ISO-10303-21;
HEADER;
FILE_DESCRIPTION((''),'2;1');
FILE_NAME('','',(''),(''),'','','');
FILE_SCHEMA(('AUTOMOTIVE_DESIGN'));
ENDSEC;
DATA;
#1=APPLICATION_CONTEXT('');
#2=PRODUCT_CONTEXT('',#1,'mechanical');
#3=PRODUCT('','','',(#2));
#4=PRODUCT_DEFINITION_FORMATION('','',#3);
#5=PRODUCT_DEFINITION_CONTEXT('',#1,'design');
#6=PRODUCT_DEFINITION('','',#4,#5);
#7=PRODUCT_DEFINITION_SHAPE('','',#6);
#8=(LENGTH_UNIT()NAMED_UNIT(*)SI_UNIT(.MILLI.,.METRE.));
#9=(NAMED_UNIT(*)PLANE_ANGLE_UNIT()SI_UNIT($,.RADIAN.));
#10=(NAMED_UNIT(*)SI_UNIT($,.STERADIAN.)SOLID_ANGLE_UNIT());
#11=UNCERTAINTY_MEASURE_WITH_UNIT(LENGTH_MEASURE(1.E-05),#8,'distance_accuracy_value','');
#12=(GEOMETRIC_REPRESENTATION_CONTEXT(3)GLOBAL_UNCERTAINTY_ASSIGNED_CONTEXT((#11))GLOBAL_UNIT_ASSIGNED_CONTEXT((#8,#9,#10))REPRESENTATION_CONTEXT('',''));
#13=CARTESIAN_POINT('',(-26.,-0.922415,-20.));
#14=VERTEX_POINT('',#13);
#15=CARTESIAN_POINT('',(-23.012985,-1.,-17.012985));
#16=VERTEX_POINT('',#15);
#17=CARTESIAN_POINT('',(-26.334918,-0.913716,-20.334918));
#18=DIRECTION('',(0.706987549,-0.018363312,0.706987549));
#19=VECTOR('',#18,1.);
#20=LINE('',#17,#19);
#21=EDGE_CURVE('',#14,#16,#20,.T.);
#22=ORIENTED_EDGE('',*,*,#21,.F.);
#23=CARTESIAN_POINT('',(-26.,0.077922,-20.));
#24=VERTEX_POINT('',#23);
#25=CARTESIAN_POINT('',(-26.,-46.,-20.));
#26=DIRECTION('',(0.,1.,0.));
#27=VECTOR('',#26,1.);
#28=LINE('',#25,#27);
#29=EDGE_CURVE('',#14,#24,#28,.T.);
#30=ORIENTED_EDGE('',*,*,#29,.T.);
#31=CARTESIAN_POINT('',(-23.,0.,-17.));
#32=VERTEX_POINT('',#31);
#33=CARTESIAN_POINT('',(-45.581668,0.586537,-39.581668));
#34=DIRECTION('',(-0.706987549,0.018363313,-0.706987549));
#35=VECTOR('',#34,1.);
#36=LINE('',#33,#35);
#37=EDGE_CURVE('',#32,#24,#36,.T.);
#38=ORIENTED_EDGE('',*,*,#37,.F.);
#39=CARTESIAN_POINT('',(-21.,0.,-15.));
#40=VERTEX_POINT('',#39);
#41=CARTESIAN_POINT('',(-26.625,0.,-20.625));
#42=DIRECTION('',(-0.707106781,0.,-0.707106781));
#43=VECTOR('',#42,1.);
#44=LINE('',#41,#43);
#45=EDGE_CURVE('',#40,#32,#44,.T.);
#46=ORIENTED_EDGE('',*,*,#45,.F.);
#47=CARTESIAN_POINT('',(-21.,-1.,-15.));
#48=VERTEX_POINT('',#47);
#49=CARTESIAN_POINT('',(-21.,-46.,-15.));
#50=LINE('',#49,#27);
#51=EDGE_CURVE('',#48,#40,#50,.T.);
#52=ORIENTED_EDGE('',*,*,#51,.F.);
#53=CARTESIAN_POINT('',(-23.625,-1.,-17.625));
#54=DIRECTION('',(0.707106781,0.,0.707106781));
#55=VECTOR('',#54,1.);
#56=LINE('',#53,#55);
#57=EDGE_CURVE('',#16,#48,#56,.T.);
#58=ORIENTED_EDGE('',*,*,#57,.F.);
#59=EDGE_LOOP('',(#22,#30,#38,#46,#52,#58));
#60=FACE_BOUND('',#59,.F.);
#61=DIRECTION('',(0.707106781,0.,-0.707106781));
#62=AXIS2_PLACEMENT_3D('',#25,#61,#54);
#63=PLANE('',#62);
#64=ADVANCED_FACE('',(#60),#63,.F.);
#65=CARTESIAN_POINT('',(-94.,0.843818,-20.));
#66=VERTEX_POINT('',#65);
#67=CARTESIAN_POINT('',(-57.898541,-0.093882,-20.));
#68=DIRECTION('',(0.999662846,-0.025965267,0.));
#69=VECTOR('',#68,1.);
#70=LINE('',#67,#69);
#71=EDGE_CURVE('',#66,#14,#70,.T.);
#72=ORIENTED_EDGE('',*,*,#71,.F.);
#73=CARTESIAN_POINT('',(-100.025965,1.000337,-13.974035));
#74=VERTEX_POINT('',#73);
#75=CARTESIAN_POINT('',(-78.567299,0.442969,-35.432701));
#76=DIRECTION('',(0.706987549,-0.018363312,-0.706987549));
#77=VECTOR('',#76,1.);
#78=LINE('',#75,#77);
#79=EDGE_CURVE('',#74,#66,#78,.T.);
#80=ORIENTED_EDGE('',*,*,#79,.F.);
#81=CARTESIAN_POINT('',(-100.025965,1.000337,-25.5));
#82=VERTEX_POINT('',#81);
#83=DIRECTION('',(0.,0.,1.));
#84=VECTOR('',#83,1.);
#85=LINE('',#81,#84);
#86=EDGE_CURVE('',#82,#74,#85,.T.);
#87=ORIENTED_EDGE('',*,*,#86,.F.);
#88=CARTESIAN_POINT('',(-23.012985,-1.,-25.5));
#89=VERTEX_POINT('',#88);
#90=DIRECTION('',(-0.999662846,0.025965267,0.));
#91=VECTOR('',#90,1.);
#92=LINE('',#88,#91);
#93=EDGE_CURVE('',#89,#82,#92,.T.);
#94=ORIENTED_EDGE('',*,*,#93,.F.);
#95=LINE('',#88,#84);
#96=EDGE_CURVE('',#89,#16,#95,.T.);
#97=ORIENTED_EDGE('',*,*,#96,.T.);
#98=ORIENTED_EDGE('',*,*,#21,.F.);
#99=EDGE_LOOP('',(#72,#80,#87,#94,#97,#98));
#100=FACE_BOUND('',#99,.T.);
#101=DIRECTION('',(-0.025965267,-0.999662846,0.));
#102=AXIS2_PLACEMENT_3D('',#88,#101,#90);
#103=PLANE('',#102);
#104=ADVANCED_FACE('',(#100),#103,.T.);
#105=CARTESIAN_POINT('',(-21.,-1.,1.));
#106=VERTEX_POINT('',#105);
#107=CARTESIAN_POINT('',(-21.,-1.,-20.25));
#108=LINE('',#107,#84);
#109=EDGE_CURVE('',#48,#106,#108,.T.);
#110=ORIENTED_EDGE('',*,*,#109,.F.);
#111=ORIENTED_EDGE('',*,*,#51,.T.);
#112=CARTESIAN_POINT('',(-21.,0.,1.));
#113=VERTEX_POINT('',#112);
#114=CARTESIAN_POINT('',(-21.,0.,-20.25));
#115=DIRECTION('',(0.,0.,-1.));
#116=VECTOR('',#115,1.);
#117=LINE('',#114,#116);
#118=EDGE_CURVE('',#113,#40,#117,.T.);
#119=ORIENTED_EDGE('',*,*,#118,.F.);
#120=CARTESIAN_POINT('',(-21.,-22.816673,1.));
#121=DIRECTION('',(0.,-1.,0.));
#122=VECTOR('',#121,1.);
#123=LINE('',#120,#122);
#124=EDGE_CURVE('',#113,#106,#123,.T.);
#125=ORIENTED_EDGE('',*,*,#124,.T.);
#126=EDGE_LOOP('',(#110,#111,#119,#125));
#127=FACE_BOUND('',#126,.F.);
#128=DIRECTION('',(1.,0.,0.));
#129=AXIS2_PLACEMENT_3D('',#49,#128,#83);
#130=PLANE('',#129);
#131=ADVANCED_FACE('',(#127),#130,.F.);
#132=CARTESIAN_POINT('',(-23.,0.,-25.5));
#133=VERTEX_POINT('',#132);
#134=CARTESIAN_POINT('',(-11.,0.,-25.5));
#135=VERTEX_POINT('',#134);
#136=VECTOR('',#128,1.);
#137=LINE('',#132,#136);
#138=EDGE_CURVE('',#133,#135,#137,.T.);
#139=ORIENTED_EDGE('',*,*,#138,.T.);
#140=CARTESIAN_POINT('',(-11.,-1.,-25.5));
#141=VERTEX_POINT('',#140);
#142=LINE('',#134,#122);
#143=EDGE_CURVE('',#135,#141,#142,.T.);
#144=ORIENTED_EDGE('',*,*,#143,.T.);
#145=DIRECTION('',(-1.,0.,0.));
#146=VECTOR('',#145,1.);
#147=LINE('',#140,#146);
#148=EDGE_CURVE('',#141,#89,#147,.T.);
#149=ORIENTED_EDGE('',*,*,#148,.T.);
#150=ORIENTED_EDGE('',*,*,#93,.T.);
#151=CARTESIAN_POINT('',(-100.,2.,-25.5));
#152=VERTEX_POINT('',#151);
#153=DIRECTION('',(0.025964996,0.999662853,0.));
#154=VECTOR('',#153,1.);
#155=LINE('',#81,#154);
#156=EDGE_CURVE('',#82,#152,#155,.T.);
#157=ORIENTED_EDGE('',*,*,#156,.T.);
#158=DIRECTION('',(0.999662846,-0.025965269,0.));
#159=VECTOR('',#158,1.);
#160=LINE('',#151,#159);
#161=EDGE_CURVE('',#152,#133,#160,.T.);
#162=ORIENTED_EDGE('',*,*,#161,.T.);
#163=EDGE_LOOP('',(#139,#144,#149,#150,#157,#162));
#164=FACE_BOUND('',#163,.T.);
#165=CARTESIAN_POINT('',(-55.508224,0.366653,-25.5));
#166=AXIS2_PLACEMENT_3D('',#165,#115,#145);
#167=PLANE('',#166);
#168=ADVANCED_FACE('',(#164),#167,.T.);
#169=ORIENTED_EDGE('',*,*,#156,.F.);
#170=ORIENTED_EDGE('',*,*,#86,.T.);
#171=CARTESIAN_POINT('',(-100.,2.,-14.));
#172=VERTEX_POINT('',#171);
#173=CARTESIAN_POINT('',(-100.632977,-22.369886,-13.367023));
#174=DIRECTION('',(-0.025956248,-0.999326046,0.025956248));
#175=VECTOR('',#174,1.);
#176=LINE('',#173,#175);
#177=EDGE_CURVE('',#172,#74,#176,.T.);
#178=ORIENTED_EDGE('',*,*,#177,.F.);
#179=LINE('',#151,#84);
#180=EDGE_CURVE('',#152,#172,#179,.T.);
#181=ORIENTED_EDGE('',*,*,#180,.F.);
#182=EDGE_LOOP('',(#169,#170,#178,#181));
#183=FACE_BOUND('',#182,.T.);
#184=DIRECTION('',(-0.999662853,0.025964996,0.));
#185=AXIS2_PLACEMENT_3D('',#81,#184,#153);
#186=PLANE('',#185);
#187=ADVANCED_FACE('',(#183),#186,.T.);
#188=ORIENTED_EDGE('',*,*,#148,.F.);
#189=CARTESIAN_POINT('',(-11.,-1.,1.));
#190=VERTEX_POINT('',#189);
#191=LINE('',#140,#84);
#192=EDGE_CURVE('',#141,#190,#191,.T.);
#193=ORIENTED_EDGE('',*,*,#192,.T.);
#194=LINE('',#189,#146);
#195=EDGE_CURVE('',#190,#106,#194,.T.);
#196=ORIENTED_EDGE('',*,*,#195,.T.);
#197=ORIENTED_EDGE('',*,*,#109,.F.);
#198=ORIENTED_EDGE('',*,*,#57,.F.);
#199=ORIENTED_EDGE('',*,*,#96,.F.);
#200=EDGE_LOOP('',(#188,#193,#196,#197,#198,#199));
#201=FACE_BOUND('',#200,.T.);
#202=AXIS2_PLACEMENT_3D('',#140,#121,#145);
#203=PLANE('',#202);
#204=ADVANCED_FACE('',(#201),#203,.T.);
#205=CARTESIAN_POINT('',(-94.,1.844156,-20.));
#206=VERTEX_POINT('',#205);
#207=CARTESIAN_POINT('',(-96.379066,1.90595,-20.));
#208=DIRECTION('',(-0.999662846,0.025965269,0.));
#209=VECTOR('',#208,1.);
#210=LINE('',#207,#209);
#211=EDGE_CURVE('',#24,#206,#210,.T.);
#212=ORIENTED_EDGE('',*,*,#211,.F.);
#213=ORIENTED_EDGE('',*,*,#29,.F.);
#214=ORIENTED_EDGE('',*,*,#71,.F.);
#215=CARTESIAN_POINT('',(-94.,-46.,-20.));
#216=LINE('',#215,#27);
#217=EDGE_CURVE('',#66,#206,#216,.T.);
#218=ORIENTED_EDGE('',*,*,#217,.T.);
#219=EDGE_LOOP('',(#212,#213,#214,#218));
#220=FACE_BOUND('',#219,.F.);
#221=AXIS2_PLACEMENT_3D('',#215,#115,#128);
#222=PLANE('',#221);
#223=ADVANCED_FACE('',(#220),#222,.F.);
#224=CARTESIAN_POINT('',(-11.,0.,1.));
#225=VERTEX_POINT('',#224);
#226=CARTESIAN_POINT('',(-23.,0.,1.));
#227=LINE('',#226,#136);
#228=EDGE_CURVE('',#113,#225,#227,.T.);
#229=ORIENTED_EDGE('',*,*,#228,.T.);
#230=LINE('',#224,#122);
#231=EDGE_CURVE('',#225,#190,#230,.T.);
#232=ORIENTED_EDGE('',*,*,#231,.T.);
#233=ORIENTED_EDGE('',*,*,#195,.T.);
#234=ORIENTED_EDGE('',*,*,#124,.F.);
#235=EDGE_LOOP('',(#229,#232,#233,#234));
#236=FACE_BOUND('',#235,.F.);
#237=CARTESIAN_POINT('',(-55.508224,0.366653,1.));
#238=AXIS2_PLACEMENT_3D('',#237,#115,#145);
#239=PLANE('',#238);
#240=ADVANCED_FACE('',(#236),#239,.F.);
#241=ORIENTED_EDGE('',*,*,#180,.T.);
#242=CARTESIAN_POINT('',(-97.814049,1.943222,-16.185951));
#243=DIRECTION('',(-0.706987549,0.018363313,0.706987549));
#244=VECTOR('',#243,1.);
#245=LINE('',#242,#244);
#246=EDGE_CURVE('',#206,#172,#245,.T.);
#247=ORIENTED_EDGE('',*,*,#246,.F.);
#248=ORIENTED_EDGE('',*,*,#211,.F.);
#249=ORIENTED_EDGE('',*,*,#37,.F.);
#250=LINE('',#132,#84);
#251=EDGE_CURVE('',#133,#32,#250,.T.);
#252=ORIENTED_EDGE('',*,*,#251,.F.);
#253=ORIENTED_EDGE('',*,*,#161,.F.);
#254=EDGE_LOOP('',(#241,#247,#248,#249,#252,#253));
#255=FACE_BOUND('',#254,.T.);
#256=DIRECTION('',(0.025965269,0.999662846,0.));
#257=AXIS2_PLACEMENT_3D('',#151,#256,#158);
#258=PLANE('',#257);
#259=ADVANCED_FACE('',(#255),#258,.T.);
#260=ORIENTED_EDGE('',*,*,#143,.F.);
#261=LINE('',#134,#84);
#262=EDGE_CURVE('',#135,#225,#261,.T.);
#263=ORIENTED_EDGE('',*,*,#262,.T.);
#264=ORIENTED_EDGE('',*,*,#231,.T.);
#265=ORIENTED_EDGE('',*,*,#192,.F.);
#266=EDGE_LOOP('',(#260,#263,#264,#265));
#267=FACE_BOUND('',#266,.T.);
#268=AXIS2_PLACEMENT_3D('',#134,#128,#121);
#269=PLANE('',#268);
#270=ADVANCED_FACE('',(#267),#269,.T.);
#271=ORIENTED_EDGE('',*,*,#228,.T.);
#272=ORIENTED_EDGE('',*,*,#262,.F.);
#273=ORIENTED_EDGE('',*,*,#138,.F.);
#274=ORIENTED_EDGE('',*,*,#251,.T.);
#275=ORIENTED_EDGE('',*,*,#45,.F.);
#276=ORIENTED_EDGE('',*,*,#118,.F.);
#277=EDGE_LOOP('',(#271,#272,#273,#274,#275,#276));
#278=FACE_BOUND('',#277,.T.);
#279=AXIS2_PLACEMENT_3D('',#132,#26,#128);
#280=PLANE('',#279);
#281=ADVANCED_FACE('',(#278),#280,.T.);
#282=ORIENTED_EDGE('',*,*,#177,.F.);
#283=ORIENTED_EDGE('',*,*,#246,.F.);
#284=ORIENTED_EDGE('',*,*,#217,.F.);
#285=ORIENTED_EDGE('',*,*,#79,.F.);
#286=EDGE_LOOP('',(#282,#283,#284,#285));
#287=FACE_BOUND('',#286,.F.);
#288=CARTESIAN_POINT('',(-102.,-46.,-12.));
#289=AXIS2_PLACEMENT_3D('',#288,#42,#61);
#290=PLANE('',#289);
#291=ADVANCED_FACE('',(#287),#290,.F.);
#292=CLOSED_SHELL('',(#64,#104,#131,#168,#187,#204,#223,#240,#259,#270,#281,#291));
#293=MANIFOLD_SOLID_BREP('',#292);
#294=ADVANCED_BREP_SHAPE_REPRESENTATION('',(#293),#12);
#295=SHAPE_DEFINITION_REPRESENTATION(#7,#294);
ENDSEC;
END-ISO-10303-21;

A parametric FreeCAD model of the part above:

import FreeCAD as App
import Part
import Sketcher
from FreeCAD import Vector
Q = App.Units.Quantity


def add_polygon(sketch, points):
    """Adds a closed chain of lines whose ends are joined by coincident constraints."""
    first, n = sketch.GeometryCount, len(points)
    for a, b in zip(points, points[1:] + points[:1]):
        sketch.addGeometry(Part.LineSegment(App.Vector(*a, 0), App.Vector(*b, 0)), False)
    for i in range(n):
        sketch.addConstraint(Sketcher.Constraint("Coincident", first + i, 2, first + (i + 1) % n, 1))

doc = App.newDocument("Part")
body = doc.addObject("PartDesign::Body", "Body")

sketch1 = body.newObject("Sketcher::SketchObject", "Sketch")
sketch1.AttachmentSupport = (doc.getObject("XZ_Plane"), [""])
sketch1.MapMode = "FlatFace"
sketch1.AttachmentOffset = App.Placement(Vector(0, 0, 46), App.Rotation())
add_polygon(sketch1, [(-21, 8), (-102, 8), (-102, -12), (-94, -20), (-26, -20), (-21, -15)])
sketch1.addConstraint([
    Sketcher.Constraint("Horizontal", 0),
    Sketcher.Constraint("Vertical", 1),
    Sketcher.Constraint("Horizontal", 3),
    Sketcher.Constraint("Vertical", 5),
    Sketcher.Constraint("Perpendicular", 2, 4),
    Sketcher.Constraint("DistanceX", 0, 2, 0, 1, Q("81 mm")),
    Sketcher.Constraint("DistanceX", 3, 1, 3, 2, Q("68 mm")),
    Sketcher.Constraint("Angle", 2, Q("-45 deg")),
    Sketcher.Constraint("DistanceY", 1, 2, 1, 1, Q("19.5 mm")),
    Sketcher.Constraint("DistanceY", 5, 1, 5, 2, Q("22.5 mm")),
    Sketcher.Constraint("DistanceX", 0, 2, -1, 1, Q("102 mm")),
    Sketcher.Constraint("DistanceY", 1, 2, -1, 1, Q("12 mm")),
])
pad1 = body.newObject("PartDesign::Pad", "Pad")
pad1.Profile = sketch1
pad1.Length = 60
pad1.Reversed = True
body2 = doc.addObject("PartDesign::Body", "Body001")

sketch2 = body2.newObject("Sketcher::SketchObject", "Sketch001")
sketch2.AttachmentSupport = (doc.getObject("XY_Plane001"), [""])
sketch2.MapMode = "FlatFace"
sketch2.AttachmentOffset = App.Placement(Vector(0, 0, -25.5), App.Rotation())
add_polygon(sketch2, [(-23.012985, -1), (-11, -1), (-11, 0), (-23, 0), (-100, 2), (-100.025965, 1.000337)])
sketch2.addConstraint([
    Sketcher.Constraint("Horizontal", 0),
    Sketcher.Constraint("Vertical", 1),
    Sketcher.Constraint("Horizontal", 2),
    Sketcher.Constraint("PointOnObject", 1, 2, -1),
    Sketcher.Constraint("Perpendicular", 3, 4),
    Sketcher.Constraint("Perpendicular", 4, 5),
    Sketcher.Constraint("DistanceX", 2, 2, 2, 1, Q("12 mm")),
    Sketcher.Constraint("DistanceY", 1, 1, 1, 2, Q("1 mm")),
    Sketcher.Constraint("Distance", 4, Q("1 mm")),
    Sketcher.Constraint("DistanceX", 0, 2, -1, 1, Q("11 mm")),
    Sketcher.Constraint("DistanceX", 3, 2, -1, 1, Q("100 mm")),
    Sketcher.Constraint("DistanceY", -1, 1, 3, 2, Q("2 mm")),
])
pad2 = body2.newObject("PartDesign::Pad", "Pad001")
pad2.Profile = sketch2
pad2.Length = 26.5
doc.recompute()

boolean = body2.newObject("PartDesign::Boolean", "Boolean")
boolean.Type = "Cut"
boolean.addObjects([body])

doc.recompute()
